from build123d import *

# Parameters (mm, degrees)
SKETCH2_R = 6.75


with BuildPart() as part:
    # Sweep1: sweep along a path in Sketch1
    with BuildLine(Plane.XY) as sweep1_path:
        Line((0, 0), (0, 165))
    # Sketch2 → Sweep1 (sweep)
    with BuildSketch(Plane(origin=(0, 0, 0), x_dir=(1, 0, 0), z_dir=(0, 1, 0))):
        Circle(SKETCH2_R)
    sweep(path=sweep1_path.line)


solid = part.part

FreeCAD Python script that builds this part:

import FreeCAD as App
import Part
import Sketcher
from FreeCAD import Vector

doc = App.newDocument("Part")
body = doc.addObject("PartDesign::Body", "Body")

# Sketch on XZ plane
sketch1 = body.newObject("Sketcher::SketchObject", "Sketch")
sketch1.AttachmentSupport = (doc.getObject("XZ_Plane"), [""])
sketch1.MapMode = "FlatFace"
sketch1.addGeometry(Part.Circle(Vector(0, 0, 0), Vector(0, 0, 1), 7), False)
sketch1.addConstraint(Sketcher.Constraint("Coincident", 0, 3, -1, 1))
sketch1.addConstraint(Sketcher.Constraint("Diameter", 0, 13.5))

# Sketch on XY plane
sketch2 = body.newObject("Sketcher::SketchObject", "Sketch001")
sketch2.AttachmentSupport = (doc.getObject("XY_Plane"), [""])
sketch2.MapMode = "FlatFace"
sketch2.addGeometry(Part.LineSegment(Vector(0, 0, 0), Vector(0, 165, 0)), False)
sketch2.addConstraint(Sketcher.Constraint("Vertical", 0))
sketch2.addConstraint(Sketcher.Constraint("Coincident", 0, 1, -1, 1))
sketch2.addConstraint(Sketcher.Constraint("DistanceY", 0, 1, 0, 2, 165.0))
doc.recompute()

additivepipe = body.newObject("PartDesign::AdditivePipe", "AdditivePipe")
additivepipe.Profile = sketch1
additivepipe.Spine = (sketch2, ["Edge1"])

doc.recompute()
